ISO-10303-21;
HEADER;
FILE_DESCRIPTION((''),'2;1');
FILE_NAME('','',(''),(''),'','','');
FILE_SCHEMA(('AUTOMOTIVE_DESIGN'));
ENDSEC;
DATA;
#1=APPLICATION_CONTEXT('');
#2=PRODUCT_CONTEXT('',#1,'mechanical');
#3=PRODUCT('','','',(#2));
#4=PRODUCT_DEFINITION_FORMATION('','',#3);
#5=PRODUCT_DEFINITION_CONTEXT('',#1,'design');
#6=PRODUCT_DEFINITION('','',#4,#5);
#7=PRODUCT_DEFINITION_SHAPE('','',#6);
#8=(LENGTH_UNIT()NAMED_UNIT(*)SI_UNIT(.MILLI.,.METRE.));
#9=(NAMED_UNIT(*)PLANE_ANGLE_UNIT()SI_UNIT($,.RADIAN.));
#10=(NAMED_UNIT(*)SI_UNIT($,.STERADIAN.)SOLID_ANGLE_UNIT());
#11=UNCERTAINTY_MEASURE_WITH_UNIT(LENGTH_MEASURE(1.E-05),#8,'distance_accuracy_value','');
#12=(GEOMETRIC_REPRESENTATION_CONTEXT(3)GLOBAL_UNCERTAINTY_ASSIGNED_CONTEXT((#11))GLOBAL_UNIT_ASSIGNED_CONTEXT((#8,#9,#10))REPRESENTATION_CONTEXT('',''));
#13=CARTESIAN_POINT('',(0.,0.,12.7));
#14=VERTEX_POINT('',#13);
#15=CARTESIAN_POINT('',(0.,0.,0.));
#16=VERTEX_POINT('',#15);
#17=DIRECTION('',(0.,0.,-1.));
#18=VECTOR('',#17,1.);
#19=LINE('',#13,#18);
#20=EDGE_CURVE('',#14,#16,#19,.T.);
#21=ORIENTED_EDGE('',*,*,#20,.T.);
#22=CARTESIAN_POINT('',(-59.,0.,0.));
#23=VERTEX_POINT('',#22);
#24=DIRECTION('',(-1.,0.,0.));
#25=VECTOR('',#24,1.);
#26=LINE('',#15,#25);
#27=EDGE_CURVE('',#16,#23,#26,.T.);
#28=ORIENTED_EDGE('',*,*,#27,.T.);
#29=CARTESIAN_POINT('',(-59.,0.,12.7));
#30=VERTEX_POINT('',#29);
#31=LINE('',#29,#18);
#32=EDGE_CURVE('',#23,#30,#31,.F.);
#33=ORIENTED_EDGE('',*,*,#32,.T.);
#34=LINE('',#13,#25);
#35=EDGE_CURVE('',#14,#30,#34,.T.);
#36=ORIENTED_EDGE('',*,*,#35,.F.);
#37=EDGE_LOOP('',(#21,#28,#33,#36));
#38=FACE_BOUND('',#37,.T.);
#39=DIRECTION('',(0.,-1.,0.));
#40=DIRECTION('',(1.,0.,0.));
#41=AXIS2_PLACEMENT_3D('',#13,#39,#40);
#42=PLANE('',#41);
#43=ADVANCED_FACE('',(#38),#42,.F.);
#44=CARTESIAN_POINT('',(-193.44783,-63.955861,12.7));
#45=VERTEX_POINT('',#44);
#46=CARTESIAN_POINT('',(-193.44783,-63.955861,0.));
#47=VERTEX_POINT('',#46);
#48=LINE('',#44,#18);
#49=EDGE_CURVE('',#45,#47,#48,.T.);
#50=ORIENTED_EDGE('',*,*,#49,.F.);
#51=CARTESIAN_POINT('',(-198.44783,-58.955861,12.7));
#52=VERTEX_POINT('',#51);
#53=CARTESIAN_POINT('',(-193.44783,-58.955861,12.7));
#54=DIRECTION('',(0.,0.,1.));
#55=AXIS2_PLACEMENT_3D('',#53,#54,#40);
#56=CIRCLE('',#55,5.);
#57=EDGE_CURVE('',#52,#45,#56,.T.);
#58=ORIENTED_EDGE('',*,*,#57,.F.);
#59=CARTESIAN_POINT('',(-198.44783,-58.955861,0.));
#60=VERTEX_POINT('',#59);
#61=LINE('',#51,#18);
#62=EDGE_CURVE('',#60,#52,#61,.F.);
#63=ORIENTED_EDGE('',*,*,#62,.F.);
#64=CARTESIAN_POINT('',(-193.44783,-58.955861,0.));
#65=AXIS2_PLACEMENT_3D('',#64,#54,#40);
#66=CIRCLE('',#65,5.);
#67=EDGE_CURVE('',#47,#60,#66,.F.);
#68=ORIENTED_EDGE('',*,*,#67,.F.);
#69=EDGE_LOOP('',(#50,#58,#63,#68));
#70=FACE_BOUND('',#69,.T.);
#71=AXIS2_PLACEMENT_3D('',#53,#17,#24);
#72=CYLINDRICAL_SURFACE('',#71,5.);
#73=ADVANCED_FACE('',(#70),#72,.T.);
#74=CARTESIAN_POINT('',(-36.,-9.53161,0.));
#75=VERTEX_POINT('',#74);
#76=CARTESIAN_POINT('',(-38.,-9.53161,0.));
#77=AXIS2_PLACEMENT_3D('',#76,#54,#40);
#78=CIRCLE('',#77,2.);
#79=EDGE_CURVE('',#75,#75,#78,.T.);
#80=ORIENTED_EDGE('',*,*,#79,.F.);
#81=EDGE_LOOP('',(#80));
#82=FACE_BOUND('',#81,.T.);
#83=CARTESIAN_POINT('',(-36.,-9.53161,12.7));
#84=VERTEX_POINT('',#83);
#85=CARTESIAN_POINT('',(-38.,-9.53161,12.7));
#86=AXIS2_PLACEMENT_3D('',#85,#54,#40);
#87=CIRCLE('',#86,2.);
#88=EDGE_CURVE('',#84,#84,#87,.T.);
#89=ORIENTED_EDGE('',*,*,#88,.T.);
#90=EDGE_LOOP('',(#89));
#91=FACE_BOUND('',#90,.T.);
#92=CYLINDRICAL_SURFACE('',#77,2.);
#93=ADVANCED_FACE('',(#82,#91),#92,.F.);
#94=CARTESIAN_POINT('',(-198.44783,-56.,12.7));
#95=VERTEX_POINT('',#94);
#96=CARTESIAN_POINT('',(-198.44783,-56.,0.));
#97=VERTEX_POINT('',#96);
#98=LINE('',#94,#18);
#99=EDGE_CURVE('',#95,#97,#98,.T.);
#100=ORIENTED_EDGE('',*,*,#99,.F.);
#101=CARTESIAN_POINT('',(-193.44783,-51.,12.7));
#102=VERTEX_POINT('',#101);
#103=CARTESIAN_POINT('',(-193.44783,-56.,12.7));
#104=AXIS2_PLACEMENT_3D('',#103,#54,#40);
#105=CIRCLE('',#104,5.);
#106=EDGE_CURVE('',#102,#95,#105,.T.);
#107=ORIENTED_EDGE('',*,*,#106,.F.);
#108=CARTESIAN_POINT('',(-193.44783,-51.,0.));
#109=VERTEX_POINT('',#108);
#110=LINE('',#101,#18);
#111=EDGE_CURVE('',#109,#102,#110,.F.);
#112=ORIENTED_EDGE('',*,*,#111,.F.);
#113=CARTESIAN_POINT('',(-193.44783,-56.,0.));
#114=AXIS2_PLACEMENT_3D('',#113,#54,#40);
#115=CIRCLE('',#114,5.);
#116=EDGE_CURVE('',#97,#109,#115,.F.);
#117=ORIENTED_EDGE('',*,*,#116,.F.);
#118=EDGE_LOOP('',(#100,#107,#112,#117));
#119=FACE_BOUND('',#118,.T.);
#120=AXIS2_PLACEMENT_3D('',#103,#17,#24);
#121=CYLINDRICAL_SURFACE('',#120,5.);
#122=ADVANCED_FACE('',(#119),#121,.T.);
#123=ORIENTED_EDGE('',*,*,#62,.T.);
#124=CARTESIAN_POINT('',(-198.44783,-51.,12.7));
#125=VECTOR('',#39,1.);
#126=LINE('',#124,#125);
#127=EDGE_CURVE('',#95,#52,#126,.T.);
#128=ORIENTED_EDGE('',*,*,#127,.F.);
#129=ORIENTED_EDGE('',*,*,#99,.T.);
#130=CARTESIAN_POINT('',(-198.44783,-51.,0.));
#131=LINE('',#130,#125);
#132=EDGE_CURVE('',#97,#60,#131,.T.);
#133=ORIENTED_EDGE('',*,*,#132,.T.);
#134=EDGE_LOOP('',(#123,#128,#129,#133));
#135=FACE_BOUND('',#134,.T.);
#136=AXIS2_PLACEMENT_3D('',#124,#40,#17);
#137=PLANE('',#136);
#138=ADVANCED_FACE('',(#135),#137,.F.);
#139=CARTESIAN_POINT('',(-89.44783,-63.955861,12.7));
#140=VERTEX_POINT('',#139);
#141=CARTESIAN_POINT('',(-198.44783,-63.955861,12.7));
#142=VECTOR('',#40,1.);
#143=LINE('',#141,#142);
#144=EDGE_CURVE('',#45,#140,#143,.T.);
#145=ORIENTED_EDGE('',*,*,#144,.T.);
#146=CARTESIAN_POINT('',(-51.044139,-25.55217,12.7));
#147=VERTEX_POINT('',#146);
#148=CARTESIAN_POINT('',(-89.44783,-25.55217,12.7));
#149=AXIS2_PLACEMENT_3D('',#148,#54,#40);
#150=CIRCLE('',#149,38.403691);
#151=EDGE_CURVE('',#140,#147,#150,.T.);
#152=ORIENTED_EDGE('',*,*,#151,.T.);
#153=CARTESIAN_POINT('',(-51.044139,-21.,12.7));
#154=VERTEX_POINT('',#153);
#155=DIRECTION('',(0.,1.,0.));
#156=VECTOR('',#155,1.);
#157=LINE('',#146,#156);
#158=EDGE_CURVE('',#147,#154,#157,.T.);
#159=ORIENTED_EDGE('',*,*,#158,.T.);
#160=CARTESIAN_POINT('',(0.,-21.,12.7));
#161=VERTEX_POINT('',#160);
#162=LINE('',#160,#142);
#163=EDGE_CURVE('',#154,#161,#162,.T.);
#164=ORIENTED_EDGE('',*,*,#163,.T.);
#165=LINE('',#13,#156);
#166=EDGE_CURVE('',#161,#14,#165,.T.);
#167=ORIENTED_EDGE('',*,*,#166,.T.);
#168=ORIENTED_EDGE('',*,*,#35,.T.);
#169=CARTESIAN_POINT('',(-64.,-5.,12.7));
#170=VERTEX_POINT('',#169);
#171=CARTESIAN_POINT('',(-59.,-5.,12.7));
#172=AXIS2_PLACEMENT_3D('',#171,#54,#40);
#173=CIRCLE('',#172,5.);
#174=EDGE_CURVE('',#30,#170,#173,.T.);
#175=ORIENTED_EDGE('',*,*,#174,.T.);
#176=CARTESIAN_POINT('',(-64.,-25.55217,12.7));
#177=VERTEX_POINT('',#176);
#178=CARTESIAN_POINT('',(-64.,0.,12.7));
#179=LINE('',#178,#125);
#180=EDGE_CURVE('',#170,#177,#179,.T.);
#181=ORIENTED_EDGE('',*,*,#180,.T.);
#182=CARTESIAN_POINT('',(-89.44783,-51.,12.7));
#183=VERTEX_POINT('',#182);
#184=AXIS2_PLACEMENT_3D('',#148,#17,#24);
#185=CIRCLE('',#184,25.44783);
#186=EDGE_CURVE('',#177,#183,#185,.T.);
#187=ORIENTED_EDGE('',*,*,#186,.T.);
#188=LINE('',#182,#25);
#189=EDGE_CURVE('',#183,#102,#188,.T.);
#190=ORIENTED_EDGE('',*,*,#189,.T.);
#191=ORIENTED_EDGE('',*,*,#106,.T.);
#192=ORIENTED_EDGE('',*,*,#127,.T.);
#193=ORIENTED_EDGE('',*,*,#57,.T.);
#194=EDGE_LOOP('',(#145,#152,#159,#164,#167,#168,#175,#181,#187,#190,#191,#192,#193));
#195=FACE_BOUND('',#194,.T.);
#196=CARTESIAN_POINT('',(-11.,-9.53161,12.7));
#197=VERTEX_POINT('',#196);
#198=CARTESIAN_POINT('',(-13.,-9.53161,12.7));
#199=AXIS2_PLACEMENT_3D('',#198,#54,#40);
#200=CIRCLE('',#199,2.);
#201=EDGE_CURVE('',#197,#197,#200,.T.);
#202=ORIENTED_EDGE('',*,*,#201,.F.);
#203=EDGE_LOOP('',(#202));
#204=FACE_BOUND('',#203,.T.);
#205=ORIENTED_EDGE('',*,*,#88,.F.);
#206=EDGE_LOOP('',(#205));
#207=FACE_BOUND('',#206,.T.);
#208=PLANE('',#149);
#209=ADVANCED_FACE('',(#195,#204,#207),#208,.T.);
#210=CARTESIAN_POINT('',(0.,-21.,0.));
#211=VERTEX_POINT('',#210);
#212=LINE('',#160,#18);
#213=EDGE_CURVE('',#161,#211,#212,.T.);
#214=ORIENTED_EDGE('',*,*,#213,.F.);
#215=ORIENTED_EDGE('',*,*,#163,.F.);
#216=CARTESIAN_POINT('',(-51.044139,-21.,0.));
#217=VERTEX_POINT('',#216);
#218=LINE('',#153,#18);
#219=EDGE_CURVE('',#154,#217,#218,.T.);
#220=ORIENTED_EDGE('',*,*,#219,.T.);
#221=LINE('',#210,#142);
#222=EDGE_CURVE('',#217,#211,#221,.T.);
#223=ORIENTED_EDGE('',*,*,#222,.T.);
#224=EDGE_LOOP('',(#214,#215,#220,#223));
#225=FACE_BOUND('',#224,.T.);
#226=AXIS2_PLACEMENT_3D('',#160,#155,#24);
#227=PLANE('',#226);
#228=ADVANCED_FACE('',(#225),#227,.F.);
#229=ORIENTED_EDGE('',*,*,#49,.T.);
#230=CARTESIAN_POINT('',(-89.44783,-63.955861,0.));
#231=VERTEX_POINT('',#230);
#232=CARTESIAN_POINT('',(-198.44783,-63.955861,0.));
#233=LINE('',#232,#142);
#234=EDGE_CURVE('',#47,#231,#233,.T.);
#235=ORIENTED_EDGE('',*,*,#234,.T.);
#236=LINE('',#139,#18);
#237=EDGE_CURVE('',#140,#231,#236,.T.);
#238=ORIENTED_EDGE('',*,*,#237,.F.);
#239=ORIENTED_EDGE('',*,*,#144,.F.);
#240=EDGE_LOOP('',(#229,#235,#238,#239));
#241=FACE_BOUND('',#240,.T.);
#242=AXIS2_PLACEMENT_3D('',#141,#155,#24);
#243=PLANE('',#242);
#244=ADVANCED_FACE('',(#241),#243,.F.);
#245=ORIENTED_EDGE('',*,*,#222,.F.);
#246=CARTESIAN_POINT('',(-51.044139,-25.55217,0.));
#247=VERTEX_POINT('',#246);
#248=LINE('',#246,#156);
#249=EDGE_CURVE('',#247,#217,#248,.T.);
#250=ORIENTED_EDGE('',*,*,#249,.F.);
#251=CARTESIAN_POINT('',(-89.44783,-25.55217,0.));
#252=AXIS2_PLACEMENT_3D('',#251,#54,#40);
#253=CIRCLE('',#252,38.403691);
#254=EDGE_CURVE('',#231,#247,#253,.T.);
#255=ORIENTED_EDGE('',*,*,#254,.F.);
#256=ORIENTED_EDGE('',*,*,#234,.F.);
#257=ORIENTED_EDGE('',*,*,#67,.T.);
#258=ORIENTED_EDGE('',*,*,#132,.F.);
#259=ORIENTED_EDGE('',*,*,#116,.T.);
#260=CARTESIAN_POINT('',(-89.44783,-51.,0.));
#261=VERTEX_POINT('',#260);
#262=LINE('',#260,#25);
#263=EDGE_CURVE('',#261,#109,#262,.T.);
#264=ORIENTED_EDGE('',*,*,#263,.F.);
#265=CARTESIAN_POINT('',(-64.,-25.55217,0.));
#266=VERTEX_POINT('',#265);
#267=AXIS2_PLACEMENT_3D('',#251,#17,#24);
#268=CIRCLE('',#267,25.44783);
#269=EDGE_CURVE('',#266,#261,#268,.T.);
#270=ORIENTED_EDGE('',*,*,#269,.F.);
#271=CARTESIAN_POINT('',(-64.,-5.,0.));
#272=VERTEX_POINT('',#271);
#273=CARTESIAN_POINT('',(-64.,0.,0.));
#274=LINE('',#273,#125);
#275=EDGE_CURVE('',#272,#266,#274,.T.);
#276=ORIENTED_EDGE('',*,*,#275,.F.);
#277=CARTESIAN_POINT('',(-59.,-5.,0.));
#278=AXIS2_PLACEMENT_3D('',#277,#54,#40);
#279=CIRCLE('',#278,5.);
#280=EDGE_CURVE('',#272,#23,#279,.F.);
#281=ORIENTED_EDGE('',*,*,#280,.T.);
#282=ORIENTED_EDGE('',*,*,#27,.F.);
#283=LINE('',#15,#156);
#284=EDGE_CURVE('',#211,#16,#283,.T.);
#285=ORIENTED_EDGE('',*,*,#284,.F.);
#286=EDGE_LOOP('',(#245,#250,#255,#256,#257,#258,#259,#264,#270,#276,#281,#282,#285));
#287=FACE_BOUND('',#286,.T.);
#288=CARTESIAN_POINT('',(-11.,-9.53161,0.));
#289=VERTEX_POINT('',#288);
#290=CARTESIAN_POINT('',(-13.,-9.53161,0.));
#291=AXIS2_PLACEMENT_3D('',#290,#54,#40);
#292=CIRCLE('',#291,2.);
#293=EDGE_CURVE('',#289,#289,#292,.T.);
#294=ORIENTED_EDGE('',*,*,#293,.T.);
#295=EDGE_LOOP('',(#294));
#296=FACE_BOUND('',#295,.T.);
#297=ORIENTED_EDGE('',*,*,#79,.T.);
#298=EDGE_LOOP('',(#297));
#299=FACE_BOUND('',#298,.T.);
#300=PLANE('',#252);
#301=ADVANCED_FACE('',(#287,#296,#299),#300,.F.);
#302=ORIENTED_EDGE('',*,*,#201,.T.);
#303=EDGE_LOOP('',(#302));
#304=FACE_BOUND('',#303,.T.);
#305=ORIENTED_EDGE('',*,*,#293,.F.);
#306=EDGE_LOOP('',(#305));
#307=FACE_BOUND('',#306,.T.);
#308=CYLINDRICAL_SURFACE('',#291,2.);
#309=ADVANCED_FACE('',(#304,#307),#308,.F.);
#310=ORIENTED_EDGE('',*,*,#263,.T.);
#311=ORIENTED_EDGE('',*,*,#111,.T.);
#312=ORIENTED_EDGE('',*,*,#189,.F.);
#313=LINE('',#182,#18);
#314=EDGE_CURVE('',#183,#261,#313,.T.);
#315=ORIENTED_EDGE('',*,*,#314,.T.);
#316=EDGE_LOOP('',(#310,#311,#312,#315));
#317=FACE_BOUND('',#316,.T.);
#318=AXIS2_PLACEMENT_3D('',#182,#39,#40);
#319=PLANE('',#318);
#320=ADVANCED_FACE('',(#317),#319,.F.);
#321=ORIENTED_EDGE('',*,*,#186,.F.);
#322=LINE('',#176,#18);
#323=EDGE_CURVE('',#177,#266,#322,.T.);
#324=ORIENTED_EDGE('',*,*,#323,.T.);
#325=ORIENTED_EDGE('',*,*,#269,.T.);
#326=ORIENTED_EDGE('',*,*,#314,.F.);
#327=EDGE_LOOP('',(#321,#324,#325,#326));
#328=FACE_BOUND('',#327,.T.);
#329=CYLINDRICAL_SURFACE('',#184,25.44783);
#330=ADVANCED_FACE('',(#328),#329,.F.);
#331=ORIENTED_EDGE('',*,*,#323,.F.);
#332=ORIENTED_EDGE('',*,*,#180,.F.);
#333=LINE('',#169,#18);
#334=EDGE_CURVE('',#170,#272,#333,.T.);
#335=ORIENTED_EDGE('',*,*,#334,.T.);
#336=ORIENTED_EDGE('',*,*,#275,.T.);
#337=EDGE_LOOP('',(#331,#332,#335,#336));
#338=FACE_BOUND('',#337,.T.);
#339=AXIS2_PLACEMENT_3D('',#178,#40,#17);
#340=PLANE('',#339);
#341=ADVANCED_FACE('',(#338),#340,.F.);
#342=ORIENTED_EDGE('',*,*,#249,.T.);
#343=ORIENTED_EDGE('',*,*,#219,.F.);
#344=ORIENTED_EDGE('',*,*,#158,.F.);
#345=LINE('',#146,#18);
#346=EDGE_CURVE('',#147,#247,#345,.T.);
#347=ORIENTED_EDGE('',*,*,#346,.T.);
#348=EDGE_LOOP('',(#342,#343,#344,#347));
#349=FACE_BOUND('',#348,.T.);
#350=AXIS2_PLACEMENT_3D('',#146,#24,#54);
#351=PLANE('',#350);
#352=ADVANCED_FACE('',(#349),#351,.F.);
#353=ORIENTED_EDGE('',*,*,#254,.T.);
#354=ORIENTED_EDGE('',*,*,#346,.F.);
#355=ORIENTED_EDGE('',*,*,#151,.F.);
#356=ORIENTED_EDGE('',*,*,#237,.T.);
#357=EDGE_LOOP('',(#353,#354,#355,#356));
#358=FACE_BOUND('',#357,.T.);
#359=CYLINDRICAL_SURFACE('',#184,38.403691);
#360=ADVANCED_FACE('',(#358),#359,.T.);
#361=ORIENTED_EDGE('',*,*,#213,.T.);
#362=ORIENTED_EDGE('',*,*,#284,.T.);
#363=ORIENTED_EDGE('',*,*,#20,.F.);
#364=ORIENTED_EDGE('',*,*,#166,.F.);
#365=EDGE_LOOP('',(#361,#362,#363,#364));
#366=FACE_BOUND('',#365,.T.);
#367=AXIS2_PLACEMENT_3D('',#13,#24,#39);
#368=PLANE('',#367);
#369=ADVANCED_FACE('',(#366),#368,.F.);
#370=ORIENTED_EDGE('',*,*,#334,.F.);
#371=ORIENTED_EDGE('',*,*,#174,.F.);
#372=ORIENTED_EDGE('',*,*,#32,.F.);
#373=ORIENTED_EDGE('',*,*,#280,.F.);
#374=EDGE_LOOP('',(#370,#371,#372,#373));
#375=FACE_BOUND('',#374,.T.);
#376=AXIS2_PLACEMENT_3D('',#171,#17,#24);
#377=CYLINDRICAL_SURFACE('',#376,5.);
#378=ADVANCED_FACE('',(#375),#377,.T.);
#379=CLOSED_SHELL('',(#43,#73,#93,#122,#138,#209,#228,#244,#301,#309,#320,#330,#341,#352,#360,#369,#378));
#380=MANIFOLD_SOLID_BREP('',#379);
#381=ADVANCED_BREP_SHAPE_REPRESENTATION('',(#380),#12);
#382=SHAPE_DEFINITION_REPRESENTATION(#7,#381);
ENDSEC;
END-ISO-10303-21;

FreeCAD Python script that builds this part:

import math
import FreeCAD as App
import Part
import Sketcher

V = App.Vector
Q = App.Units.Quantity


def edges_at(feature, points):
    """Names of the edges that pass closest to the given points."""
    edges = feature.Shape.Edges
    near = lambda p: min(range(len(edges)), key=lambda i: edges[i].distToShape(Part.Vertex(*p))[0])
    return sorted({f"Edge{near(p) + 1}" for p in points})

doc = App.newDocument("Part")
body = doc.addObject("PartDesign::Body", "Body")

# Sketch on XY plane
sketch1 = doc.addObject("Sketcher::SketchObject", "Sketch")
body.addObject(sketch1)
sketch1.AttachmentSupport = (doc.XY_Plane, [""])
sketch1.MapMode = "FlatFace"
sketch1.addGeometry([
    Part.LineSegment(V(0, 0, 0), V(-64, 0, 0)),  # 0
    Part.LineSegment(V(-64, 0, 0), V(-64, -25.6, 0)),  # 1
    Part.ArcOfCircle(Part.Circle(V(-89.4, -25.6, 0), V(0, 0, 1), 25.4), math.radians(-90), math.radians(0)),  # 2
    Part.LineSegment(V(-89.4, -51, 0), V(-198.4, -51, 0)),  # 3
    Part.LineSegment(V(-198.4, -51, 0), V(-198.4, -64, 0)),  # 4
    Part.LineSegment(V(-198.4, -64, 0), V(-89.4, -64, 0)),  # 5
    Part.ArcOfCircle(Part.Circle(V(-89.4, -25.6, 0), V(0, 0, 1), 38.4), math.radians(-90), math.radians(0)),  # 6
    Part.LineSegment(V(-51, -25.6, 0), V(-51, -21, 0)),  # 7
    Part.LineSegment(V(-51, -21, 0), V(0, -21, 0)),  # 8
    Part.LineSegment(V(0, -21, 0), V(0, 0, 0)),  # 9
], False)
sketch1.addConstraint([
    Sketcher.Constraint("Coincident", 0, 2, 1, 1),
    Sketcher.Constraint("Tangent", 1, 2, 2, 2),
    Sketcher.Constraint("Tangent", 2, 1, 3, 1),
    Sketcher.Constraint("Coincident", 3, 2, 4, 1),
    Sketcher.Constraint("Coincident", 4, 2, 5, 1),
    Sketcher.Constraint("Tangent", 5, 2, 6, 1),
    Sketcher.Constraint("Tangent", 6, 2, 7, 1),
    Sketcher.Constraint("Coincident", 7, 2, 8, 1),
    Sketcher.Constraint("Coincident", 8, 2, 9, 1),
    Sketcher.Constraint("Coincident", 9, 2, 0, 1),
    Sketcher.Constraint("Horizontal", 0),
    Sketcher.Constraint("Vertical", 1),
    Sketcher.Constraint("Horizontal", 3),
    Sketcher.Constraint("Vertical", 4),
    Sketcher.Constraint("Horizontal", 5),
    Sketcher.Constraint("Vertical", 7),
    Sketcher.Constraint("Horizontal", 8),
    Sketcher.Constraint("Vertical", 9),
    Sketcher.Constraint("Coincident", 9, 2, -1, 1),
    Sketcher.Constraint("Coincident", 6, 3, 2, 3),
    Sketcher.Constraint("DistanceX", 0, 2, 0, 1, Q("64 mm")),
    Sketcher.Constraint("DistanceX", 3, 2, 3, 1, Q("109 mm")),
    Sketcher.Constraint("DistanceY", 9, 1, 9, 2, Q("21 mm")),
    Sketcher.Constraint("DistanceY", 2, 1, -1, 1, Q("51 mm")),
    Sketcher.Constraint("Radius", 2, Q("25.44783 mm")),
    Sketcher.Constraint("Radius", 6, Q("38.403691 mm")),
])
pad1 = doc.addObject("PartDesign::Pad", "Pad")
body.addObject(pad1)
pad1.Profile = sketch1
pad1.Length = 12.7
doc.recompute()

fillet = doc.addObject("PartDesign::Fillet", "Fillet")
body.addObject(fillet)
fillet.Base = (pad1, edges_at(pad1, [(-198.448, -63.956, 6.35), (-198.448, -51, 6.35), (-64, 0, 6.35)]))
fillet.Radius = 5

# Sketch on XY plane
sketch2 = doc.addObject("Sketcher::SketchObject", "Sketch001")
body.addObject(sketch2)
sketch2.AttachmentSupport = (doc.XY_Plane, [""])
sketch2.MapMode = "FlatFace"
sketch2.AttachmentOffset = App.Placement(V(0, 0, 12.7), App.Rotation())
sketch2.addGeometry([
    Part.Circle(V(-13, -9.5, 0), V(0, 0, 1), 2),
    Part.Circle(V(-38, -9.5, 0), V(0, 0, 1), 2),
], False)
sketch2.addConstraint([
    Sketcher.Constraint("Equal", 0, 1),
    Sketcher.Constraint("Horizontal", 0, 3, 1, 3),
    Sketcher.Constraint("Diameter", 0, Q("4 mm")),
    Sketcher.Constraint("DistanceX", 0, 3, -1, 1, Q("13 mm")),
    Sketcher.Constraint("DistanceX", 1, 3, -1, 1, Q("38 mm")),
    Sketcher.Constraint("DistanceY", 0, 3, -1, 1, Q("9.53161 mm")),
])
pocket1 = doc.addObject("PartDesign::Pocket", "Pocket")
body.addObject(pocket1)
pocket1.Profile = sketch2
pocket1.Type = "ThroughAll"

doc.recompute()
